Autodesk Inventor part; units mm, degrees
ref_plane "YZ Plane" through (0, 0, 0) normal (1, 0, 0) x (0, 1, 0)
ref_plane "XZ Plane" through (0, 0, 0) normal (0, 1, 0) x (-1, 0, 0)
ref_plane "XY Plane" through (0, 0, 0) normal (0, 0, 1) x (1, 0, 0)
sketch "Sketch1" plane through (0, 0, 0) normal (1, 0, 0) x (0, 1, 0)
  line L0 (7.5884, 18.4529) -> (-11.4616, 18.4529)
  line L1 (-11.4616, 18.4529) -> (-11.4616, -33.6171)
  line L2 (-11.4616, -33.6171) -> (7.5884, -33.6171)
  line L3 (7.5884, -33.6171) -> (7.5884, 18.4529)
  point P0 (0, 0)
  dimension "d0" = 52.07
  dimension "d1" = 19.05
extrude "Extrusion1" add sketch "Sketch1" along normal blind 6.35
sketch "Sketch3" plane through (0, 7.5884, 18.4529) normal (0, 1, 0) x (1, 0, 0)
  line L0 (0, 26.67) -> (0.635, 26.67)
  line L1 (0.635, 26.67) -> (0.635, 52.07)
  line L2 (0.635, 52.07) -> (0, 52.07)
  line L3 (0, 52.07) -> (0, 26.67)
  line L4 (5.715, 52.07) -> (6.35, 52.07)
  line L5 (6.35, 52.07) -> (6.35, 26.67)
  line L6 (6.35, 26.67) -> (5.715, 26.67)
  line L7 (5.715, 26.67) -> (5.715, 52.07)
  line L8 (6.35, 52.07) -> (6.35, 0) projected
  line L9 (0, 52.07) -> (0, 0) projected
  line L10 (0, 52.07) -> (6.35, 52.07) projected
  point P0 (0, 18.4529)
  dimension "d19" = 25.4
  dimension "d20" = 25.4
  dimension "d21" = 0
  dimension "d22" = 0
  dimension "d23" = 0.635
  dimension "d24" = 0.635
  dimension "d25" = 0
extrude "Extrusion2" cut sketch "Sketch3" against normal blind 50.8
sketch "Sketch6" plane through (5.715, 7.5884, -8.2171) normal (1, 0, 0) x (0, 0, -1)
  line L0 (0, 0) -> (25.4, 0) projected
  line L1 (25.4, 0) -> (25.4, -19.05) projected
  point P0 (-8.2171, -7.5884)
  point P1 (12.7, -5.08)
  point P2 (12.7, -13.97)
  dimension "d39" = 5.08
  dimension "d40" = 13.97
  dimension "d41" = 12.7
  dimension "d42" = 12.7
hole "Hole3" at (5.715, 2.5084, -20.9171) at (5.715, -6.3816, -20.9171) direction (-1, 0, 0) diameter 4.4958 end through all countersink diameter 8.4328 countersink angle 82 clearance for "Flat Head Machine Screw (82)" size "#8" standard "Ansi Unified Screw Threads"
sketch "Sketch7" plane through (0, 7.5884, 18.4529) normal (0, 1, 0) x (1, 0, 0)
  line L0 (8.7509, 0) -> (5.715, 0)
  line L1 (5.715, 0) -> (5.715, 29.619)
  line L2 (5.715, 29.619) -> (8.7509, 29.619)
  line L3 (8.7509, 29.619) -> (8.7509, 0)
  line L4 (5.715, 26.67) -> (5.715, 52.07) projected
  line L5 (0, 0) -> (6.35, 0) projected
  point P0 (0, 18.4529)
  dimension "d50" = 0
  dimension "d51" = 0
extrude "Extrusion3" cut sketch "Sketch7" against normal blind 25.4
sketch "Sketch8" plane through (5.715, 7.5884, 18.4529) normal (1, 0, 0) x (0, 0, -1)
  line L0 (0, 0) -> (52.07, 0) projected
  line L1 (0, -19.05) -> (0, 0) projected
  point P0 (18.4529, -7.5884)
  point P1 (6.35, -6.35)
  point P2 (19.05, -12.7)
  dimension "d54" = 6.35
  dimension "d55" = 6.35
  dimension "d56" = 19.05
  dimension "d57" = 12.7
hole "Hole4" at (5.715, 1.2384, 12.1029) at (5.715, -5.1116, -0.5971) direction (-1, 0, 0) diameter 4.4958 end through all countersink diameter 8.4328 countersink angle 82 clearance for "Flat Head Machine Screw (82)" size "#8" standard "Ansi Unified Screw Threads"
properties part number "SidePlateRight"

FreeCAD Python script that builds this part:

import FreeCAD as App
import Part
import Sketcher
Q = App.Units.Quantity

doc = App.newDocument("Part")
body = doc.addObject("PartDesign::Body", "Body")

# Sketch on YZ plane
sketch1 = doc.addObject("Sketcher::SketchObject", "Sketch")
body.addObject(sketch1)
sketch1.AttachmentSupport = (doc.YZ_Plane, [""])
sketch1.MapMode = "FlatFace"
sketch1.addGeometry(Part.LineSegment(App.Vector(7.5884, -33.6171, 0), App.Vector(7.5884, 18.4529, 0)), False)
sketch1.addGeometry(Part.LineSegment(App.Vector(7.5884, 18.4529, 0), App.Vector(-11.4616, 18.4529, 0)), False)
sketch1.addGeometry(Part.LineSegment(App.Vector(-11.4616, 18.4529, 0), App.Vector(-11.4616, -33.6171, 0)), False)
sketch1.addGeometry(Part.LineSegment(App.Vector(-11.4616, -33.6171, 0), App.Vector(7.5884, -33.6171, 0)), False)
sketch1.addConstraint(Sketcher.Constraint("Coincident", 0, 2, 1, 1))
sketch1.addConstraint(Sketcher.Constraint("Coincident", 1, 2, 2, 1))
sketch1.addConstraint(Sketcher.Constraint("Coincident", 2, 2, 3, 1))
sketch1.addConstraint(Sketcher.Constraint("Coincident", 3, 2, 0, 1))
sketch1.addConstraint(Sketcher.Constraint("Vertical", 0))
sketch1.addConstraint(Sketcher.Constraint("Horizontal", 1))
sketch1.addConstraint(Sketcher.Constraint("Vertical", 2))
sketch1.addConstraint(Sketcher.Constraint("Horizontal", 3))
sketch1.addConstraint(Sketcher.Constraint("DistanceX", 1, 2, 1, 1, Q("0.75 in")))
sketch1.addConstraint(Sketcher.Constraint("DistanceY", 0, 1, 0, 2, Q("2.05 in")))
sketch1.addConstraint(Sketcher.Constraint("DistanceY", -1, 1, 0, 2, Q("0.7265 in")))
sketch1.addConstraint(Sketcher.Constraint("DistanceX", -1, 1, 0, 2, Q("7.5884 mm")))
pad1 = doc.addObject("PartDesign::Pad", "Pad")
body.addObject(pad1)
pad1.Profile = sketch1
pad1.Length = Q("0.25 in")

# Sketch on XZ plane
sketch2 = doc.addObject("Sketcher::SketchObject", "Sketch001")
body.addObject(sketch2)
sketch2.AttachmentSupport = (doc.XZ_Plane, [""])
sketch2.MapMode = "FlatFace"
sketch2.AttachmentOffset = App.Placement(App.Vector(0, 0, -7.5884), App.Rotation())
sketch2.addGeometry(Part.LineSegment(App.Vector(0, -33.6171, 0), App.Vector(0, -8.2171, 0)), False)
sketch2.addGeometry(Part.LineSegment(App.Vector(0, -8.2171, 0), App.Vector(0.635, -8.2171, 0)), False)
sketch2.addGeometry(Part.LineSegment(App.Vector(0.635, -8.2171, 0), App.Vector(0.635, -33.6171, 0)), False)
sketch2.addGeometry(Part.LineSegment(App.Vector(0.635, -33.6171, 0), App.Vector(0, -33.6171, 0)), False)
sketch2.addGeometry(Part.LineSegment(App.Vector(6.35, -33.6171, 0), App.Vector(5.715, -33.6171, 0)), False)
sketch2.addGeometry(Part.LineSegment(App.Vector(5.715, -33.6171, 0), App.Vector(5.715, -8.2171, 0)), False)
sketch2.addGeometry(Part.LineSegment(App.Vector(5.715, -8.2171, 0), App.Vector(6.35, -8.2171, 0)), False)
sketch2.addGeometry(Part.LineSegment(App.Vector(6.35, -8.2171, 0), App.Vector(6.35, -33.6171, 0)), False)
sketch2.addConstraint(Sketcher.Constraint("Coincident", 0, 2, 1, 1))
sketch2.addConstraint(Sketcher.Constraint("Coincident", 1, 2, 2, 1))
sketch2.addConstraint(Sketcher.Constraint("Coincident", 2, 2, 3, 1))
sketch2.addConstraint(Sketcher.Constraint("Coincident", 3, 2, 0, 1))
sketch2.addConstraint(Sketcher.Constraint("Coincident", 4, 2, 5, 1))
sketch2.addConstraint(Sketcher.Constraint("Coincident", 5, 2, 6, 1))
sketch2.addConstraint(Sketcher.Constraint("Coincident", 6, 2, 7, 1))
sketch2.addConstraint(Sketcher.Constraint("Coincident", 7, 2, 4, 1))
sketch2.addConstraint(Sketcher.Constraint("Vertical", 0))
sketch2.addConstraint(Sketcher.Constraint("Horizontal", 1))
sketch2.addConstraint(Sketcher.Constraint("Vertical", 2))
sketch2.addConstraint(Sketcher.Constraint("Horizontal", 3))
sketch2.addConstraint(Sketcher.Constraint("Horizontal", 4))
sketch2.addConstraint(Sketcher.Constraint("Vertical", 5))
sketch2.addConstraint(Sketcher.Constraint("Horizontal", 6))
sketch2.addConstraint(Sketcher.Constraint("Vertical", 7))
sketch2.addConstraint(Sketcher.Constraint("PointOnObject", 0, 2, -2))
sketch2.addConstraint(Sketcher.Constraint("Horizontal", 3, 2, 4, 2))
sketch2.addConstraint(Sketcher.Constraint("Horizontal", 1, 2, 5, 2))
sketch2.addConstraint(Sketcher.Constraint("Equal", 3, 4))
sketch2.addConstraint(Sketcher.Constraint("DistanceY", 0, 1, 0, 2, Q("1 in")))
sketch2.addConstraint(Sketcher.Constraint("DistanceX", 1, 1, 1, 2, Q("0.025 in")))
sketch2.addConstraint(Sketcher.Constraint("DistanceX", 2, 2, 4, 2, Q("0.2 in")))
sketch2.addConstraint(Sketcher.Constraint("DistanceY", 0, 2, -1, 1, Q("0.3235 in")))
pocket1 = doc.addObject("PartDesign::Pocket", "Pocket")
body.addObject(pocket1)
pocket1.Profile = sketch2
pocket1.Length = Q("2 in")
pocket1.Reversed = True

# Sketch on YZ plane
sketch3 = doc.addObject("Sketcher::SketchObject", "Sketch002")
body.addObject(sketch3)
sketch3.AttachmentSupport = (doc.YZ_Plane, [""])
sketch3.MapMode = "FlatFace"
sketch3.AttachmentOffset = App.Placement(App.Vector(0, 0, 0.225 * 25.4), App.Rotation())
sketch3.addGeometry(Part.Circle(App.Vector(2.5084, -20.9171, 0), App.Vector(0, 0, 1), 2.2479), False)
sketch3.addGeometry(Part.Circle(App.Vector(-6.3816, -20.9171, 0), App.Vector(0, 0, 1), 2.2479), False)
sketch3.addConstraint(Sketcher.Constraint("Equal", 0, 1))
sketch3.addConstraint(Sketcher.Constraint("Horizontal", 0, 3, 1, 3))
sketch3.addConstraint(Sketcher.Constraint("Diameter", 0, Q("0.177 in")))
sketch3.addConstraint(Sketcher.Constraint("DistanceX", 1, 3, 0, 3, Q("0.35 in")))
sketch3.addConstraint(Sketcher.Constraint("DistanceY", 0, 3, -1, 1, Q("0.8235 in")))
sketch3.addConstraint(Sketcher.Constraint("DistanceX", -1, 1, 0, 3, Q("2.5084 mm")))
doc.recompute()
hole = doc.addObject("PartDesign::Hole", "Hole")
body.addObject(hole)
hole.Profile = sketch3
hole.ThreadType = "None"
hole.Diameter = Q("0.177 in")
hole.DepthType = "ThroughAll"
hole.HoleCutType = "Countersink"
hole.HoleCutDiameter = Q("0.332 in")
hole.HoleCutCountersinkAngle = 82

# Sketch on XZ plane
sketch4 = doc.addObject("Sketcher::SketchObject", "Sketch003")
body.addObject(sketch4)
sketch4.AttachmentSupport = (doc.XZ_Plane, [""])
sketch4.MapMode = "FlatFace"
sketch4.AttachmentOffset = App.Placement(App.Vector(0, 0, -7.5884), App.Rotation())
sketch4.addGeometry(Part.LineSegment(App.Vector(5.715, 18.4529, 0), App.Vector(8.7509, 18.4529, 0)), False)
sketch4.addGeometry(Part.LineSegment(App.Vector(8.7509, 18.4529, 0), App.Vector(8.7509, -11.1661, 0)), False)
sketch4.addGeometry(Part.LineSegment(App.Vector(8.7509, -11.1661, 0), App.Vector(5.715, -11.1661, 0)), False)
sketch4.addGeometry(Part.LineSegment(App.Vector(5.715, -11.1661, 0), App.Vector(5.715, 18.4529, 0)), False)
sketch4.addConstraint(Sketcher.Constraint("Coincident", 0, 2, 1, 1))
sketch4.addConstraint(Sketcher.Constraint("Coincident", 1, 2, 2, 1))
sketch4.addConstraint(Sketcher.Constraint("Coincident", 2, 2, 3, 1))
sketch4.addConstraint(Sketcher.Constraint("Coincident", 3, 2, 0, 1))
sketch4.addConstraint(Sketcher.Constraint("Horizontal", 0))
sketch4.addConstraint(Sketcher.Constraint("Vertical", 1))
sketch4.addConstraint(Sketcher.Constraint("Horizontal", 2))
sketch4.addConstraint(Sketcher.Constraint("Vertical", 3))
sketch4.addConstraint(Sketcher.Constraint("DistanceY", 1, 2, 1, 1, Q("1.1661 in")))
sketch4.addConstraint(Sketcher.Constraint("DistanceX", -1, 1, 2, 2, Q("0.225 in")))
sketch4.addConstraint(Sketcher.Constraint("DistanceX", 0, 1, 0, 2, Q("3.036 mm")))
sketch4.addConstraint(Sketcher.Constraint("DistanceY", -1, 1, 0, 2, Q("0.7265 in")))
pocket2 = doc.addObject("PartDesign::Pocket", "Pocket001")
body.addObject(pocket2)
pocket2.Profile = sketch4
pocket2.Length = Q("1 in")
pocket2.Reversed = True

# Sketch on YZ plane
sketch5 = doc.addObject("Sketcher::SketchObject", "Sketch004")
body.addObject(sketch5)
sketch5.AttachmentSupport = (doc.YZ_Plane, [""])
sketch5.MapMode = "FlatFace"
sketch5.AttachmentOffset = App.Placement(App.Vector(0, 0, 0.225 * 25.4), App.Rotation())
sketch5.addGeometry(Part.Circle(App.Vector(1.2384, 12.1029, 0), App.Vector(0, 0, 1), 2.2479), False)
sketch5.addGeometry(Part.Circle(App.Vector(-5.1116, -0.5971, 0), App.Vector(0, 0, 1), 2.2479), False)
sketch5.addConstraint(Sketcher.Constraint("Equal", 0, 1))
sketch5.addConstraint(Sketcher.Constraint("Diameter", 0, Q("0.177 in")))
sketch5.addConstraint(Sketcher.Constraint("DistanceY", 1, 3, 0, 3, Q("0.5 in")))
sketch5.addConstraint(Sketcher.Constraint("DistanceX", 1, 3, 0, 3, Q("0.25 in")))
sketch5.addConstraint(Sketcher.Constraint("DistanceY", -1, 1, 0, 3, Q("0.4765 in")))
sketch5.addConstraint(Sketcher.Constraint("DistanceX", -1, 1, 0, 3, Q("1.2384 mm")))
doc.recompute()
hole2 = doc.addObject("PartDesign::Hole", "Hole001")
body.addObject(hole2)
hole2.Profile = sketch5
hole2.ThreadType = "None"
hole2.Diameter = Q("0.177 in")
hole2.DepthType = "ThroughAll"
hole2.HoleCutType = "Countersink"
hole2.HoleCutDiameter = Q("0.332 in")
hole2.HoleCutCountersinkAngle = 82

doc.recompute()
